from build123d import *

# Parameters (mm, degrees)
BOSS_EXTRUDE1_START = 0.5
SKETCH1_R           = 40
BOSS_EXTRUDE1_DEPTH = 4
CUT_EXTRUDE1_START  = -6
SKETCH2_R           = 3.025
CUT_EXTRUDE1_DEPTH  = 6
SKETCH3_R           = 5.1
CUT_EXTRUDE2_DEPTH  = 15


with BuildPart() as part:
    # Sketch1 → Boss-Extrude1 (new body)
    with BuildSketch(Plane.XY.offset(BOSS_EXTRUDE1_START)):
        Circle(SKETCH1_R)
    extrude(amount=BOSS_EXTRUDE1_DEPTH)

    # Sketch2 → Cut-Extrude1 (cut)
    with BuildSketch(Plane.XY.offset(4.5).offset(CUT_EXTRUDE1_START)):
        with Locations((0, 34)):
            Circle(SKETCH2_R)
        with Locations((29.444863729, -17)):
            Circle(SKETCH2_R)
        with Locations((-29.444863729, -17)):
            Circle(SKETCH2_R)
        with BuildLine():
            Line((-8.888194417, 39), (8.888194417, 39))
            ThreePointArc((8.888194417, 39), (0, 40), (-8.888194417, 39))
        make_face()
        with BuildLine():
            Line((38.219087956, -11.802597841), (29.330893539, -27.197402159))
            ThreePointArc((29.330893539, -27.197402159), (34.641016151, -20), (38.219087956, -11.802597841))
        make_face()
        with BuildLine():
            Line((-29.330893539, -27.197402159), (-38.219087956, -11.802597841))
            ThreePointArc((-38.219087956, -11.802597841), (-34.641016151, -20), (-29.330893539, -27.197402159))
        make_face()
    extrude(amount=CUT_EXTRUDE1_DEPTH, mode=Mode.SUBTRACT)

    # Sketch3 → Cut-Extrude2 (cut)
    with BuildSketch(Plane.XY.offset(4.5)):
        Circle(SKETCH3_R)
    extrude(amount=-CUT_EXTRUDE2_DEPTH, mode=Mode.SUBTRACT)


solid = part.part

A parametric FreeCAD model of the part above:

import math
import FreeCAD as App
import Part
import Sketcher

V = App.Vector
Q = App.Units.Quantity

doc = App.newDocument("Part")
body = doc.addObject("PartDesign::Body", "Body")

# Sketch on XY plane
sketch1 = body.newObject("Sketcher::SketchObject", "Sketch")
sketch1.AttachmentSupport = (doc.getObject("XY_Plane"), [""])
sketch1.MapMode = "FlatFace"
sketch1.AttachmentOffset = App.Placement(V(0, 0, 0.5), App.Rotation())
sketch1.addGeometry(Part.Circle(V(0, 0, 0), V(0, 0, 1), 40), False)
sketch1.addConstraint([
    Sketcher.Constraint("Coincident", 0, 3, -1, 1),
    Sketcher.Constraint("Diameter", 0, 80.0),
])
pad1 = body.newObject("PartDesign::Pad", "Pad")
pad1.Profile = sketch1
pad1.Length = 4

# Sketch on XY plane
sketch2 = body.newObject("Sketcher::SketchObject", "Sketch001")
sketch2.AttachmentSupport = (doc.getObject("XY_Plane"), [""])
sketch2.MapMode = "FlatFace"
sketch2.AttachmentOffset = App.Placement(V(0, 0, -1.5), App.Rotation())
sketch2.addGeometry([
    Part.Circle(V(0, 34, 0), V(0, 0, 1), 3),  # 0
    Part.Circle(V(29.4, -17, 0), V(0, 0, 1), 3),  # 1
    Part.Circle(V(-29.4, -17, 0), V(0, 0, 1), 3),  # 2
    Part.LineSegment(V(-8.9, 39, 0), V(8.9, 39, 0)),  # 3
    Part.ArcOfCircle(Part.Circle(V(0, 0, 0), V(0, 0, 1), 40), math.radians(77), math.radians(103)),  # 4
    Part.LineSegment(V(38.2, -11.8, 0), V(29.3, -27.2, 0)),  # 5
    Part.ArcOfCircle(Part.Circle(V(0, 0, 0), V(0, 0, 1), 40), math.radians(-43), math.radians(-17)),  # 6
    Part.LineSegment(V(-29.3, -27.2, 0), V(-38.2, -11.8, 0)),  # 7
    Part.ArcOfCircle(Part.Circle(V(0, 0, 0), V(0, 0, 1), 40), math.radians(-163), math.radians(-137)),  # 8
], False)
sketch2.addConstraint([
    Sketcher.Constraint("Coincident", 3, 1, 4, 2),
    Sketcher.Constraint("Coincident", 4, 1, 3, 2),
    Sketcher.Constraint("Coincident", 5, 1, 6, 2),
    Sketcher.Constraint("Coincident", 6, 1, 5, 2),
    Sketcher.Constraint("Coincident", 7, 1, 8, 2),
    Sketcher.Constraint("Coincident", 8, 1, 7, 2),
    Sketcher.Constraint("Horizontal", 3),
    Sketcher.Constraint("Coincident", 4, 3, -1, 1),
    Sketcher.Constraint("Coincident", 6, 3, -1, 1),
    Sketcher.Constraint("Coincident", 8, 3, -1, 1),
    Sketcher.Constraint("Equal", 0, 1),
    Sketcher.Constraint("Equal", 1, 2),
    Sketcher.Constraint("Equal", 4, 6),
    Sketcher.Constraint("Equal", 6, 8),
    Sketcher.Constraint("Symmetric", 1, 3, 2, 3, -2),
    Sketcher.Constraint("PointOnObject", 0, 3, -2),
    Sketcher.Constraint("Horizontal", 6, 1, 7, 1),
    Sketcher.Constraint("Horizontal", 5, 1, 8, 1),
    Sketcher.Constraint("Radius", 4, 40.0),
    Sketcher.Constraint("Diameter", 0, 6.05),
    Sketcher.Constraint("Angle", 5, Q("-120 deg")),
    Sketcher.Constraint("DistanceY", -1, 1, 0, 3, 34.0),
    Sketcher.Constraint("DistanceY", 1, 3, -1, 1, 17.0),
    Sketcher.Constraint("DistanceY", -1, 1, 3, 1, 39.0),
    Sketcher.Constraint("Distance", 5, 17.776389),
    Sketcher.Constraint("DistanceX", 2, 3, 3, 1, 20.556669),
])
pocket1 = body.newObject("PartDesign::Pocket", "Pocket")
pocket1.Profile = sketch2
pocket1.Length = 6
pocket1.Reversed = True

# Sketch on XY plane
sketch3 = body.newObject("Sketcher::SketchObject", "Sketch002")
sketch3.AttachmentSupport = (doc.getObject("XY_Plane"), [""])
sketch3.MapMode = "FlatFace"
sketch3.AttachmentOffset = App.Placement(V(0, 0, 4.5), App.Rotation())
sketch3.addGeometry(Part.Circle(V(0, 0, 0), V(0, 0, 1), 5), False)
sketch3.addConstraint([
    Sketcher.Constraint("Coincident", 0, 3, -1, 1),
    Sketcher.Constraint("Diameter", 0, 10.2),
])
pocket2 = body.newObject("PartDesign::Pocket", "Pocket001")
pocket2.Profile = sketch3
pocket2.Length = 15

doc.recompute()
